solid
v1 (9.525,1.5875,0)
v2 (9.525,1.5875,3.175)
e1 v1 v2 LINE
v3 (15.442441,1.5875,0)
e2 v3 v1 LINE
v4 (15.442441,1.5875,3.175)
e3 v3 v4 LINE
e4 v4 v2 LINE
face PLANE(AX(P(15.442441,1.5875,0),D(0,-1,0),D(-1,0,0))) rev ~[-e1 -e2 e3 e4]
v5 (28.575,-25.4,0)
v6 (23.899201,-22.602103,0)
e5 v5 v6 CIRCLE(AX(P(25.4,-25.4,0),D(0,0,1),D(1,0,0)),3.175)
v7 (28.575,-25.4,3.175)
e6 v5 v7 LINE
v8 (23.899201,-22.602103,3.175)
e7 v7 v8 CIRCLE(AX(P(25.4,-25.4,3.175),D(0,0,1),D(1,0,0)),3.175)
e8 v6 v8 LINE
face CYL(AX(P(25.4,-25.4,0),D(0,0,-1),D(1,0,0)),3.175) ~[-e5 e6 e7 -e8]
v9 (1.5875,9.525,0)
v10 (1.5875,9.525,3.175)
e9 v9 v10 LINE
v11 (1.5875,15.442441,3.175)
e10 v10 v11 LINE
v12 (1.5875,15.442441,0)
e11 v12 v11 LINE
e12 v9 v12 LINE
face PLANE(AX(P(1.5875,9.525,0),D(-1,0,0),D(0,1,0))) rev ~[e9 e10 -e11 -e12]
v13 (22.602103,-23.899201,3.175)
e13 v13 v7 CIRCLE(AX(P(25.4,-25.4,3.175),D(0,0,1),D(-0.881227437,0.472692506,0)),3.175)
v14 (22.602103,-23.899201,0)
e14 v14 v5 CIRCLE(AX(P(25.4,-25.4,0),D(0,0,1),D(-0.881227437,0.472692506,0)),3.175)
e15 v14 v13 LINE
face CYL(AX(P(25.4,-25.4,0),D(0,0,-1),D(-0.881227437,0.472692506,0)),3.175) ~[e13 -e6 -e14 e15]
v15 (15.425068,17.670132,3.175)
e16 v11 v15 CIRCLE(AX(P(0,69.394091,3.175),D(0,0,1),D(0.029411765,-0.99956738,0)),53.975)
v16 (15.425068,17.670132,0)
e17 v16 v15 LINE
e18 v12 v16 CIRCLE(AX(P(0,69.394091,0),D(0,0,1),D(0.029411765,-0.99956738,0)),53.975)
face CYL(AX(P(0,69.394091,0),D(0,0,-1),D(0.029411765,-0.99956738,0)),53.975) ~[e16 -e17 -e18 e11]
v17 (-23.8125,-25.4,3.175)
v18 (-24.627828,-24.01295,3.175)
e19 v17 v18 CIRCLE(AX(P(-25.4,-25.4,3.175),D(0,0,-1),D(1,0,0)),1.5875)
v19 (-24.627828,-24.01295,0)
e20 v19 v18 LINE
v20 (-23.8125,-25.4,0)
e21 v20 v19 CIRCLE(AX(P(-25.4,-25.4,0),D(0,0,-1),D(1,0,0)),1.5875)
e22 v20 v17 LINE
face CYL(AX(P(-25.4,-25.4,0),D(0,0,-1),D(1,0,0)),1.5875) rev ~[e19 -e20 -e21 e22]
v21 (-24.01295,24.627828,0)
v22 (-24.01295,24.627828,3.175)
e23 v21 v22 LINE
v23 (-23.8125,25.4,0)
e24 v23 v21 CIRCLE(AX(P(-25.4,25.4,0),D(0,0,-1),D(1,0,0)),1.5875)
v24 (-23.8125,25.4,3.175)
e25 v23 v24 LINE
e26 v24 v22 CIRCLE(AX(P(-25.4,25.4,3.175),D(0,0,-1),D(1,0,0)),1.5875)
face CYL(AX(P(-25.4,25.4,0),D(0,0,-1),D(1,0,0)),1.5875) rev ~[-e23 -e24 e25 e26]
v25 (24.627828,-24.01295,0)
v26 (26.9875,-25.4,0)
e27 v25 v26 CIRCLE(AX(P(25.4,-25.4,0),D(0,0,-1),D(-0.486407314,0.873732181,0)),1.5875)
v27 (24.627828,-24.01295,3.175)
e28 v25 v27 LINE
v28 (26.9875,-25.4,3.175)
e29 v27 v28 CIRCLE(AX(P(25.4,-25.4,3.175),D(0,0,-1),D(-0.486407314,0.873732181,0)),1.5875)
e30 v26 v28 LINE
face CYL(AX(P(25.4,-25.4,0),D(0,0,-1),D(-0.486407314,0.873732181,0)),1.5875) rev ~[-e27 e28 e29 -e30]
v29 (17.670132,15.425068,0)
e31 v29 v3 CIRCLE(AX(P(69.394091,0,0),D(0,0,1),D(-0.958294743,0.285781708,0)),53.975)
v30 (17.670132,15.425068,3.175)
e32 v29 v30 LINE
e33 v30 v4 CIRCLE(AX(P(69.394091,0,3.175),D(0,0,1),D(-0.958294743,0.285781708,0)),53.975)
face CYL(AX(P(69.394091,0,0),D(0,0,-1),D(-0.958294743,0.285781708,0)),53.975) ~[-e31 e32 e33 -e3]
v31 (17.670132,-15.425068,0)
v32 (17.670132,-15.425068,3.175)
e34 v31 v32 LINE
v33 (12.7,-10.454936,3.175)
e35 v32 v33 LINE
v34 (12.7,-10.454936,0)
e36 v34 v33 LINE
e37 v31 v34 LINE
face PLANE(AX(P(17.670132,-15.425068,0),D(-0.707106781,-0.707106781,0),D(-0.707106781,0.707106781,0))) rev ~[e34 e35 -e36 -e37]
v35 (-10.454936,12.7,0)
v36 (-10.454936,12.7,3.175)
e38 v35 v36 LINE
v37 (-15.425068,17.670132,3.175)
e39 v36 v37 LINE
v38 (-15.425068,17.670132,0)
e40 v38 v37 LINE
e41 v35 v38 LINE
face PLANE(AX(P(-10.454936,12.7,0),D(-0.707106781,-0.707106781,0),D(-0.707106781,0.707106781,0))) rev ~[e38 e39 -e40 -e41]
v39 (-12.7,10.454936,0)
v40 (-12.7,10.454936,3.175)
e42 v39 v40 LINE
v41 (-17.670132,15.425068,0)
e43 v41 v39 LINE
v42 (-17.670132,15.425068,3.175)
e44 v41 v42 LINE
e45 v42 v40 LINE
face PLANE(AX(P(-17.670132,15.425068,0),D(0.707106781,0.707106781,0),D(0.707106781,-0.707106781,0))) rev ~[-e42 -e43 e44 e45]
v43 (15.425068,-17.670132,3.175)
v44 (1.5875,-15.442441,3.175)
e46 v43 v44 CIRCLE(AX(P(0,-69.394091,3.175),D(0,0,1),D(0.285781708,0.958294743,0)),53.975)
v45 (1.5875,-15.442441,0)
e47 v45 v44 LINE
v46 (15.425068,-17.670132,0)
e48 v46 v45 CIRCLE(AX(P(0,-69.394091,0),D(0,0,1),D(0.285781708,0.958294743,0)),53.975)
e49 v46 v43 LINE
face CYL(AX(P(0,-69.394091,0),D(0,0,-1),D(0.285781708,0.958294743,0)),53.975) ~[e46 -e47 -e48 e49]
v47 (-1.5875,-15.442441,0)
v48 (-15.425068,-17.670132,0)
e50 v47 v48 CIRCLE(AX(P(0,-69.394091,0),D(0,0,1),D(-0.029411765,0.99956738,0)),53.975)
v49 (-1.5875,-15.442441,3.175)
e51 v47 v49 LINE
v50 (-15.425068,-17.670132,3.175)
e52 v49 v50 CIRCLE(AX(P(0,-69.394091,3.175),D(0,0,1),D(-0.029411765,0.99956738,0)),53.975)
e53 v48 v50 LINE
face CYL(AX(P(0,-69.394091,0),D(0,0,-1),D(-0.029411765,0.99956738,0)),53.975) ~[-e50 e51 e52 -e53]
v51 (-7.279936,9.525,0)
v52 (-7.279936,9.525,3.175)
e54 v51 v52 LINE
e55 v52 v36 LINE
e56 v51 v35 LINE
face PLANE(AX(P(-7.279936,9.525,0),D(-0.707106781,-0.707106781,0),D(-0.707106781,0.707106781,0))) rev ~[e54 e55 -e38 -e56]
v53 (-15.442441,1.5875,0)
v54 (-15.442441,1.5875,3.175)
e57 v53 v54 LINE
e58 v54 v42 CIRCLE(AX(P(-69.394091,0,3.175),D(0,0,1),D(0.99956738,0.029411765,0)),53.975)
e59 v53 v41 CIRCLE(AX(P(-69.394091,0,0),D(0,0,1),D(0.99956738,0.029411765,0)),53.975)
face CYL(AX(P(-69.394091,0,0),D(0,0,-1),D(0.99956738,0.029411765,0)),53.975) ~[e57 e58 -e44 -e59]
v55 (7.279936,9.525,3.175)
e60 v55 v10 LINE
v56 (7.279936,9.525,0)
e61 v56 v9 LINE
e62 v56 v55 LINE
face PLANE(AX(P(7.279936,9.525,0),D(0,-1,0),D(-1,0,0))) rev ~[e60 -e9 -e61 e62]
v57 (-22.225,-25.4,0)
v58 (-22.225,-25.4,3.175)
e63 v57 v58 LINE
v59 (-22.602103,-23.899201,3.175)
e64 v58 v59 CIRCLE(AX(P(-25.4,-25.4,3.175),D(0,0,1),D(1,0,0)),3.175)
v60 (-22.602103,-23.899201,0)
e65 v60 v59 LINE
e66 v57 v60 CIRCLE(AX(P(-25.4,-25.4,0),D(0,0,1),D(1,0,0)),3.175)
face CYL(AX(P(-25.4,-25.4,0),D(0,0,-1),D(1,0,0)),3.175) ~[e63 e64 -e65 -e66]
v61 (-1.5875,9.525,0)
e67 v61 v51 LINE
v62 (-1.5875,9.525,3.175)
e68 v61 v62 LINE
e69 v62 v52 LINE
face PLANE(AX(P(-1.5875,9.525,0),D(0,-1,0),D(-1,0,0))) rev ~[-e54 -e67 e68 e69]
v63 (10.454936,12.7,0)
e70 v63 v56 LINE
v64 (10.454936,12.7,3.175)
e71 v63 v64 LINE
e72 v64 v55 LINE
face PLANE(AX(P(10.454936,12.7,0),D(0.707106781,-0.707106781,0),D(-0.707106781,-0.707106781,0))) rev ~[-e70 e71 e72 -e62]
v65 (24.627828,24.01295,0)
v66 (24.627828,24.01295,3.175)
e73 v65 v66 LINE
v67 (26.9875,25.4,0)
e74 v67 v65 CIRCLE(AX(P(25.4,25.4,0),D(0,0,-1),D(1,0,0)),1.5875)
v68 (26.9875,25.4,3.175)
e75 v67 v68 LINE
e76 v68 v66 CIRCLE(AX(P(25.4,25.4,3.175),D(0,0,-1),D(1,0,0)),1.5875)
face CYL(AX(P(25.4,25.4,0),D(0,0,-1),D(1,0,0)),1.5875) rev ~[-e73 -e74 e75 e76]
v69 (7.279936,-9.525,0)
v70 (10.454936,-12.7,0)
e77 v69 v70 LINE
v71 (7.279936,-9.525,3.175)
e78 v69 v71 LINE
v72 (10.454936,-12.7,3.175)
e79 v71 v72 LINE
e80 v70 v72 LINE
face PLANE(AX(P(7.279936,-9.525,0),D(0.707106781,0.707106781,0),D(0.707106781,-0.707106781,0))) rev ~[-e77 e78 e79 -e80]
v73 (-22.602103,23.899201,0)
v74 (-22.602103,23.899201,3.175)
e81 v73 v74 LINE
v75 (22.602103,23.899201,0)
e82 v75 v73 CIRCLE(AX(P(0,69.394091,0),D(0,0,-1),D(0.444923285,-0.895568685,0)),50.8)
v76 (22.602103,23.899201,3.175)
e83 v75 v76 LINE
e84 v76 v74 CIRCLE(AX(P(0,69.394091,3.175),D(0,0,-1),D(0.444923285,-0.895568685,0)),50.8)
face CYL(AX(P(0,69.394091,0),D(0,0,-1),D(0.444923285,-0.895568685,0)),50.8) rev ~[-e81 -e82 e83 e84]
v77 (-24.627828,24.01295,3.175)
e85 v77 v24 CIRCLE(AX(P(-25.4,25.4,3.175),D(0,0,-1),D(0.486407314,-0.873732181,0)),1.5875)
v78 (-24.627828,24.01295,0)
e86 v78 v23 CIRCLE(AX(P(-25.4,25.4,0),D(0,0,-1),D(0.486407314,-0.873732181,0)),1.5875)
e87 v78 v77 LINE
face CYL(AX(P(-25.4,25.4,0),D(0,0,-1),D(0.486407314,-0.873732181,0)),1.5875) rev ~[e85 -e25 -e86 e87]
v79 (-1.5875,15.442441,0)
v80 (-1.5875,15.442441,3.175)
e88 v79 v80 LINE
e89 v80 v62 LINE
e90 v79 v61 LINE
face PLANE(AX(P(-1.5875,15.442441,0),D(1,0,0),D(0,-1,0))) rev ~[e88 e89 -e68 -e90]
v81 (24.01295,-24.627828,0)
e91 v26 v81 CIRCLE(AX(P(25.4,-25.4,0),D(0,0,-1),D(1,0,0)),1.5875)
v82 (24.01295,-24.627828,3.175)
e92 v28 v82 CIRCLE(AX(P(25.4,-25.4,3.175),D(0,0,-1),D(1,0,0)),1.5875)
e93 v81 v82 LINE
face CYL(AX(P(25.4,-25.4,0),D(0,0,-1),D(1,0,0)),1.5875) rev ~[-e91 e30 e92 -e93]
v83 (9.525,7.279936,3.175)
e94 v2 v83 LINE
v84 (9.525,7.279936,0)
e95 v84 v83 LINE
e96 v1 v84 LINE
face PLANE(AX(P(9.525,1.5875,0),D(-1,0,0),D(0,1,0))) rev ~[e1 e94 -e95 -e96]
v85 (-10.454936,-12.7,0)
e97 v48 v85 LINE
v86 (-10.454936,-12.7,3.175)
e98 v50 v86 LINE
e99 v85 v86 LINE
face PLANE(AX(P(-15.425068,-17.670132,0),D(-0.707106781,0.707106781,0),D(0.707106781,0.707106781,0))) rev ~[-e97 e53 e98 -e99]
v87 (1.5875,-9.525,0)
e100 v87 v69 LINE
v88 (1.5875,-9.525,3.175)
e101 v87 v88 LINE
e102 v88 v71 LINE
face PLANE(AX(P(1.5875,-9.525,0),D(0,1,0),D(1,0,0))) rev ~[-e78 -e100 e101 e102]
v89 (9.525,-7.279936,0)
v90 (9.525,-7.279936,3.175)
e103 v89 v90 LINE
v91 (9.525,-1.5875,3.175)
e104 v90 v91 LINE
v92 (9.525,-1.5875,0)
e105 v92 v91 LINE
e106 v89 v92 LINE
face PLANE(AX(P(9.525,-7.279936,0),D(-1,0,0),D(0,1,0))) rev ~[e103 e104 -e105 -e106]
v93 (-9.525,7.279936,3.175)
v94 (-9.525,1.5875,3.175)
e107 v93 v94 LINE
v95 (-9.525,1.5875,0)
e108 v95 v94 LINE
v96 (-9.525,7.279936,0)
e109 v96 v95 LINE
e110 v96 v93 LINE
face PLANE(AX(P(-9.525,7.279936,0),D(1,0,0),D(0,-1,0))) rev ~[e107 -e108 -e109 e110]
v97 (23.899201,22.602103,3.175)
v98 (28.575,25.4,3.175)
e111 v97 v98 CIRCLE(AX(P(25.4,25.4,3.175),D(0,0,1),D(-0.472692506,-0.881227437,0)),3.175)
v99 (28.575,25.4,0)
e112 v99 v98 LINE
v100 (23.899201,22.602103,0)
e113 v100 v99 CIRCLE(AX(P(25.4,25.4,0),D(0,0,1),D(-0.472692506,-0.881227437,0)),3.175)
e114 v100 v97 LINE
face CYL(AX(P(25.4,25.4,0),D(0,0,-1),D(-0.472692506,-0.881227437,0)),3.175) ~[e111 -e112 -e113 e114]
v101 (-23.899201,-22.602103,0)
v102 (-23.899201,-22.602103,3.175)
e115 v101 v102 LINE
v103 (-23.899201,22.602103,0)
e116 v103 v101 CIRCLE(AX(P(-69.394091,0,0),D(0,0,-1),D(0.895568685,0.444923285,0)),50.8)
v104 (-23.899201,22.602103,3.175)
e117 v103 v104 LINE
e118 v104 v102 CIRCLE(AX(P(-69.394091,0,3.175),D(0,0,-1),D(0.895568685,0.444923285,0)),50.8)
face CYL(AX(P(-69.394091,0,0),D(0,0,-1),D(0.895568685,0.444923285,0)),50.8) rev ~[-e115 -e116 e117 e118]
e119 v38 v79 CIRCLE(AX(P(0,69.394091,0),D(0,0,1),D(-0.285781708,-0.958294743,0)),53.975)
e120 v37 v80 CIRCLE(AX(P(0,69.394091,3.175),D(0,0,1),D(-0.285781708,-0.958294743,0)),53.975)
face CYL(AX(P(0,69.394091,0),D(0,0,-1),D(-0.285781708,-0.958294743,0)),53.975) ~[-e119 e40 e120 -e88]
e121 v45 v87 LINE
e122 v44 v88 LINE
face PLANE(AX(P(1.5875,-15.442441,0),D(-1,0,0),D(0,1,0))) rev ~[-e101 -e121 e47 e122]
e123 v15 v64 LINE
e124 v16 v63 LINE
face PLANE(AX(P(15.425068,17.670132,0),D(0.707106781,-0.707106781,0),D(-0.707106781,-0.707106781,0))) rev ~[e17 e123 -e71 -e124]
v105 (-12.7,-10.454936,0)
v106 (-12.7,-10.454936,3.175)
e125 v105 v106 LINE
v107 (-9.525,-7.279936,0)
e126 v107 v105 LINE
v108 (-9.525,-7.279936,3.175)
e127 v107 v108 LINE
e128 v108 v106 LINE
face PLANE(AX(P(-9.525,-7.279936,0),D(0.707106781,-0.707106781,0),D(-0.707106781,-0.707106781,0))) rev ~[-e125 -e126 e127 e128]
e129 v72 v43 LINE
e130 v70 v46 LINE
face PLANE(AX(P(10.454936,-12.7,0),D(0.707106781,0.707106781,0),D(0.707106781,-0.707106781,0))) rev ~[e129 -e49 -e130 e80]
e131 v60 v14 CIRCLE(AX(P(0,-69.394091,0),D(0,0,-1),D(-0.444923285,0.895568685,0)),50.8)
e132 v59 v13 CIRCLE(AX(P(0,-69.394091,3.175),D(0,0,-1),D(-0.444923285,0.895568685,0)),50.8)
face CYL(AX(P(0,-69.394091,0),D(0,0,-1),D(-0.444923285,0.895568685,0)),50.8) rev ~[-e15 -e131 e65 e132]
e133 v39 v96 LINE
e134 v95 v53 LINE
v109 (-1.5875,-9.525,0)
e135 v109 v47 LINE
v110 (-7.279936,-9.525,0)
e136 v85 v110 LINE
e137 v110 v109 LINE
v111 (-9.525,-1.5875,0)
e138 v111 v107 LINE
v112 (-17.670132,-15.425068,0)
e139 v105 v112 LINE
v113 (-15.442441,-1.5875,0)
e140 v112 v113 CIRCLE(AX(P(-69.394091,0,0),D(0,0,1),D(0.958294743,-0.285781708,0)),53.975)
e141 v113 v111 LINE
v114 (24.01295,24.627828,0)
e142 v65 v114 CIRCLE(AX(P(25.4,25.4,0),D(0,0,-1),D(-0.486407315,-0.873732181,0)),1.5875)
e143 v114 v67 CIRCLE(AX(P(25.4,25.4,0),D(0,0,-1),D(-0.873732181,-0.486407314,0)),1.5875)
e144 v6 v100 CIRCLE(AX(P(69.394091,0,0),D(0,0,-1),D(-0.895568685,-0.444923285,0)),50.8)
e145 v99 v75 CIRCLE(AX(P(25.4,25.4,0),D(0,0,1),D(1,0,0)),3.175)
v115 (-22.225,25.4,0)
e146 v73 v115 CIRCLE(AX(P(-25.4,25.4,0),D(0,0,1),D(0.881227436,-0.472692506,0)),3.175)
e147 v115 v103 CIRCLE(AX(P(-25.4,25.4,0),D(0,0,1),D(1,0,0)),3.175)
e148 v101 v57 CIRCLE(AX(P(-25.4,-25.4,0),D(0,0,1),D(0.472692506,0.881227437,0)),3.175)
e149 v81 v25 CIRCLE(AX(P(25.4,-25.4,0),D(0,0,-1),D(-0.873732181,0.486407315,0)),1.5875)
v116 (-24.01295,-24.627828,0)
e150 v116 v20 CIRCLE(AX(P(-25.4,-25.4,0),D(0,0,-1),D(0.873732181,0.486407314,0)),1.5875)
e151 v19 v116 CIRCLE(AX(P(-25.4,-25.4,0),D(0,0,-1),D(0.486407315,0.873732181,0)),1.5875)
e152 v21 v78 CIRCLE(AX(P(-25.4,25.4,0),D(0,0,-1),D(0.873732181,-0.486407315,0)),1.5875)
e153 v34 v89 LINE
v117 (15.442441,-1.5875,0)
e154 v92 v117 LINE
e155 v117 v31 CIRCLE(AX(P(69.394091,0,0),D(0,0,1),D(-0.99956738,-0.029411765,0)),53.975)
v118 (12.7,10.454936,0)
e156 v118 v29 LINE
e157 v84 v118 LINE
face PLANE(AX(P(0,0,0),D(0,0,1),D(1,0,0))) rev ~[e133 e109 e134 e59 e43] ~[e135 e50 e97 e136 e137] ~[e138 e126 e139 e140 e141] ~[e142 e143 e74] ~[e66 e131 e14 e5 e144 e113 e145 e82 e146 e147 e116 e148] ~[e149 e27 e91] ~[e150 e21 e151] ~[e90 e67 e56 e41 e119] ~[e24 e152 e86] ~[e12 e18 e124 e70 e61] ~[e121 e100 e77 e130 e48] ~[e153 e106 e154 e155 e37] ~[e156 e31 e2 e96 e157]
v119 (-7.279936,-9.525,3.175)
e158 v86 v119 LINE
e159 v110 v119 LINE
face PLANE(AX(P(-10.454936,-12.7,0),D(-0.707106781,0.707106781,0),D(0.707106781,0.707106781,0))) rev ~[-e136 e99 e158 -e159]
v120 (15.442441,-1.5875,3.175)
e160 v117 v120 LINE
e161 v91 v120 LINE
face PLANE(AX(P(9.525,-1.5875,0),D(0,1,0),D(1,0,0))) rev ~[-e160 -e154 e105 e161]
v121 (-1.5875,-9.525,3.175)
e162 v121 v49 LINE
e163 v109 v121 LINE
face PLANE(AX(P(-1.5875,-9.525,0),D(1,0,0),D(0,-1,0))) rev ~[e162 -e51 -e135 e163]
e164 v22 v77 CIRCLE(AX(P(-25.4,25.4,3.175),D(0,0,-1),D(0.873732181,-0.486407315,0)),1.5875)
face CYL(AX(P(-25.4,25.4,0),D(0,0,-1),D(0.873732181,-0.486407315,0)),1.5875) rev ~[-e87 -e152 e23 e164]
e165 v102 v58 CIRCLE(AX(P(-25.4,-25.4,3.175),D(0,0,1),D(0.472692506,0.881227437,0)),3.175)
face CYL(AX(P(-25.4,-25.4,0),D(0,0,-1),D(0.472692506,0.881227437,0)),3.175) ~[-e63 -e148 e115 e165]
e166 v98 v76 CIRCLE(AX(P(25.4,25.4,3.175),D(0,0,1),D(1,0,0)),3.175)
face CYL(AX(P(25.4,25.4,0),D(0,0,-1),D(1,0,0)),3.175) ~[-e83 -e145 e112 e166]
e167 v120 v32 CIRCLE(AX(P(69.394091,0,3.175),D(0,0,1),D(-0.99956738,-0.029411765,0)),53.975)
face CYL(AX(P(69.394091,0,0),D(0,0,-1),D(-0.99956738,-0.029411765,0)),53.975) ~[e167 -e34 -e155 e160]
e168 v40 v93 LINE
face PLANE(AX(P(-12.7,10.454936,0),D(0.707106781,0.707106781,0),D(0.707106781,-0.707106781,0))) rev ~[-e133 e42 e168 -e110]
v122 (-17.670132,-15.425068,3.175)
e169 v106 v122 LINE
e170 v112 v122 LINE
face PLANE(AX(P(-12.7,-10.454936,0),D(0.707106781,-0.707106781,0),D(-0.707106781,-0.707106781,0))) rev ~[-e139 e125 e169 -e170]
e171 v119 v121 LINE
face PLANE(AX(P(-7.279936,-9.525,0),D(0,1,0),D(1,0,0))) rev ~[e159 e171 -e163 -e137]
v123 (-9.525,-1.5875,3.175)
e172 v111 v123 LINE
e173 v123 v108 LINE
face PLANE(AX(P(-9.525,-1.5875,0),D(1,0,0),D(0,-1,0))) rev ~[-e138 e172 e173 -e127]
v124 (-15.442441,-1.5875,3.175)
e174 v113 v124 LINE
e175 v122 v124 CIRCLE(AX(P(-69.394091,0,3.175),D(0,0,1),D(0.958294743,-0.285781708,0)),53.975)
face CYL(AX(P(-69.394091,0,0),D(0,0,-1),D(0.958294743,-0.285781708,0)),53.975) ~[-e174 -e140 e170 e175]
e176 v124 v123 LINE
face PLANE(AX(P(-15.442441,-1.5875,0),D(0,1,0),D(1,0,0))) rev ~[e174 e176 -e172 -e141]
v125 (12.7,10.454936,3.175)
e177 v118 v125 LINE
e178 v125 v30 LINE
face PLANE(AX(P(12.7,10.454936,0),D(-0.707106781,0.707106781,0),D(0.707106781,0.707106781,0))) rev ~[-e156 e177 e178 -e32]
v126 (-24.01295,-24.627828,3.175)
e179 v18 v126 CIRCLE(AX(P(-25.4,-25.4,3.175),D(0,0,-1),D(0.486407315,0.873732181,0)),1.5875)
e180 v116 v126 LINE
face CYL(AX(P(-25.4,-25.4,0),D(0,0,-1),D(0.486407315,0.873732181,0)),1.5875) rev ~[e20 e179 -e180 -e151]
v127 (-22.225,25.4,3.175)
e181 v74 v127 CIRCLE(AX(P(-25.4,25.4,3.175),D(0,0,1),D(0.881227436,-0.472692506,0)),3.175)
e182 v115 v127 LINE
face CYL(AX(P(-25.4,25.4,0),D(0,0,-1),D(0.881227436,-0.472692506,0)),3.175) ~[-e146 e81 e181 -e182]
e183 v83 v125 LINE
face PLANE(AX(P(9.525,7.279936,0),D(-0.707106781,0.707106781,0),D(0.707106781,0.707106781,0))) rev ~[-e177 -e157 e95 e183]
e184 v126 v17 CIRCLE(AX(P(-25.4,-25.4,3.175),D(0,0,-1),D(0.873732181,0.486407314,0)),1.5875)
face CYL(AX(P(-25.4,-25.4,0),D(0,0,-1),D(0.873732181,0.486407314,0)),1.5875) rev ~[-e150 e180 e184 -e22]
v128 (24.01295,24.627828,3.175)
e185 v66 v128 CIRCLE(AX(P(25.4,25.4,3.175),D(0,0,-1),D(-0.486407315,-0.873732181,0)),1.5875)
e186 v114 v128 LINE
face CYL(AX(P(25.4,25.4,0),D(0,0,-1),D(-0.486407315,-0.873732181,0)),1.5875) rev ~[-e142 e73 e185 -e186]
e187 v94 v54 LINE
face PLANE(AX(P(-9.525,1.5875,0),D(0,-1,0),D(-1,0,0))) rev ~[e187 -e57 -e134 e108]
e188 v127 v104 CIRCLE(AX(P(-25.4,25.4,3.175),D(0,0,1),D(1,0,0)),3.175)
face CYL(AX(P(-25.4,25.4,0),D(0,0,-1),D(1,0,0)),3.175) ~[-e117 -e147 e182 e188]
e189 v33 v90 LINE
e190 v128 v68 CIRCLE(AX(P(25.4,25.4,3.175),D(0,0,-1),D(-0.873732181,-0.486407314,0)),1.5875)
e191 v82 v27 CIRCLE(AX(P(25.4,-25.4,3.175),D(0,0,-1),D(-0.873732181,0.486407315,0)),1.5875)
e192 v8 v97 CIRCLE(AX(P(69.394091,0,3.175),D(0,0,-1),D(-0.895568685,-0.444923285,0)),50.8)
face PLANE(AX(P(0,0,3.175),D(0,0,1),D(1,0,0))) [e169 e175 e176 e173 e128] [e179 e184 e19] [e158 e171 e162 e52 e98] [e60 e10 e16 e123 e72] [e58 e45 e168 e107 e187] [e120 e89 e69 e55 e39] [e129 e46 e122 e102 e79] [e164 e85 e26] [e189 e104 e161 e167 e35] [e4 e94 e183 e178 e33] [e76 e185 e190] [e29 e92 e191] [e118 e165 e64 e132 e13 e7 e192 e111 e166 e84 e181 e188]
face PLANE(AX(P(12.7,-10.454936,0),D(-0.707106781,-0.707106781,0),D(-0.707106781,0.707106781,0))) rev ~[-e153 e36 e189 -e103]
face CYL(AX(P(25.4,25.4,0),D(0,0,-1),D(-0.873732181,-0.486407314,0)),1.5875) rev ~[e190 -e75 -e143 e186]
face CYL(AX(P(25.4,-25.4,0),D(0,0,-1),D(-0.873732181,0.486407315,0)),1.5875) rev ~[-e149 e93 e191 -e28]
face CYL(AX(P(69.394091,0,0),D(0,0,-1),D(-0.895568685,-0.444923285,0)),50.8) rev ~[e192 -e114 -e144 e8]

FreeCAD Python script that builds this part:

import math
import FreeCAD as App
import Part
import Sketcher
Q = App.Units.Quantity

doc = App.newDocument("Part")
params = doc.addObject("Spreadsheet::Sheet", "Params")
for row, (alias, value) in enumerate([
    ("sketch1_radius", "2 in"),
    ("sketch1_radius2", "0.125 in"),
    ("sketch1_radius3", "0.0625 in"),
    ("sketch1_radius4", "2.125 in"),
    ("pad1_length", "0.125 in"),
], start=1):
    params.set(f"A{row}", alias)
    params.set(f"B{row}", "=" + value)
    params.setAlias(f"B{row}", alias)

body = doc.addObject("PartDesign::Body", "Body")

# Sketch on XY plane
sketch1 = body.newObject("Sketcher::SketchObject", "Sketch")
sketch1.AttachmentSupport = (doc.getObject("XY_Plane"), [""])
sketch1.MapMode = "FlatFace"
sketch1.addGeometry(Part.ArcOfCircle(Part.Circle(App.Vector(-69.4, 0, 0), App.Vector(0, 0, 1), 50.8), math.radians(-26), math.radians(26)), False)
sketch1.addGeometry(Part.ArcOfCircle(Part.Circle(App.Vector(-25.4, -25.4, 0), App.Vector(0, 0, 1), 3.2), math.radians(62), math.radians(360)), False)
sketch1.addGeometry(Part.ArcOfCircle(Part.Circle(App.Vector(-25.4, -25.4, 0), App.Vector(0, 0, 1), 3.2), math.radians(0), math.radians(28)), False)
sketch1.addGeometry(Part.ArcOfCircle(Part.Circle(App.Vector(0, -69.4, 0), App.Vector(0, 0, 1), 50.8), math.radians(64), math.radians(116)), False)
sketch1.addGeometry(Part.ArcOfCircle(Part.Circle(App.Vector(25.4, -25.4, 0), App.Vector(0, 0, 1), 3.2), math.radians(152), math.radians(360)), False)
sketch1.addGeometry(Part.ArcOfCircle(Part.Circle(App.Vector(25.4, -25.4, 0), App.Vector(0, 0, 1), 3.2), math.radians(0), math.radians(118)), False)
sketch1.addGeometry(Part.ArcOfCircle(Part.Circle(App.Vector(69.4, 0, 0), App.Vector(0, 0, 1), 50.8), math.radians(154), math.radians(206)), False)
sketch1.addGeometry(Part.ArcOfCircle(Part.Circle(App.Vector(25.4, 25.4, 0), App.Vector(0, 0, 1), 3.2), math.radians(-118), math.radians(0)), False)
sketch1.addGeometry(Part.ArcOfCircle(Part.Circle(App.Vector(25.4, 25.4, 0), App.Vector(0, 0, 1), 3.2), math.radians(0), math.radians(208)), False)
sketch1.addGeometry(Part.ArcOfCircle(Part.Circle(App.Vector(0, 69.4, 0), App.Vector(0, 0, 1), 50.8), math.radians(-116), math.radians(-64)), False)
sketch1.addGeometry(Part.ArcOfCircle(Part.Circle(App.Vector(-25.4, 25.4, 0), App.Vector(0, 0, 1), 3.2), math.radians(-28), math.radians(0)), False)
sketch1.addGeometry(Part.ArcOfCircle(Part.Circle(App.Vector(-25.4, 25.4, 0), App.Vector(0, 0, 1), 3.2), math.radians(0), math.radians(298)), False)
sketch1.addGeometry(Part.ArcOfCircle(Part.Circle(App.Vector(-25.4, -25.4, 0), App.Vector(0, 0, 1), 1.6), math.radians(29), math.radians(61)), False)
sketch1.addGeometry(Part.ArcOfCircle(Part.Circle(App.Vector(-25.4, -25.4, 0), App.Vector(0, 0, 1), 1.6), math.radians(0), math.radians(29)), False)
sketch1.addGeometry(Part.ArcOfCircle(Part.Circle(App.Vector(-25.4, -25.4, 0), App.Vector(0, 0, 1), 1.6), math.radians(61), math.radians(360)), False)
sketch1.addGeometry(Part.LineSegment(App.Vector(-1.6, -9.5, 0), App.Vector(-1.6, -15.4, 0)), False)
sketch1.addGeometry(Part.ArcOfCircle(Part.Circle(App.Vector(0, -69.4, 0), App.Vector(0, 0, 1), 54), math.radians(91.69), math.radians(106.61)), False)
sketch1.addGeometry(Part.LineSegment(App.Vector(-15.4, -17.7, 0), App.Vector(-10.5, -12.7, 0)), False)
sketch1.addGeometry(Part.LineSegment(App.Vector(-10.5, -12.7, 0), App.Vector(-7.3, -9.5, 0)), False)
sketch1.addGeometry(Part.LineSegment(App.Vector(-7.3, -9.5, 0), App.Vector(-1.6, -9.5, 0)), False)
sketch1.addGeometry(Part.ArcOfCircle(Part.Circle(App.Vector(-69.4, 0, 0), App.Vector(0, 0, 1), 54), math.radians(-16.61), math.radians(-1.69)), False)
sketch1.addGeometry(Part.LineSegment(App.Vector(-15.4, -1.6, 0), App.Vector(-9.5, -1.6, 0)), False)
sketch1.addGeometry(Part.LineSegment(App.Vector(-9.5, -1.6, 0), App.Vector(-9.5, -7.3, 0)), False)
sketch1.addGeometry(Part.LineSegment(App.Vector(-9.5, -7.3, 0), App.Vector(-12.7, -10.5, 0)), False)
sketch1.addGeometry(Part.LineSegment(App.Vector(-12.7, -10.5, 0), App.Vector(-17.7, -15.4, 0)), False)
sketch1.addGeometry(Part.ArcOfCircle(Part.Circle(App.Vector(0, -69.4, 0), App.Vector(0, 0, 1), 54), math.radians(73.39), math.radians(88.31)), False)
sketch1.addGeometry(Part.LineSegment(App.Vector(1.6, -15.4, 0), App.Vector(1.6, -9.5, 0)), False)
sketch1.addGeometry(Part.LineSegment(App.Vector(1.6, -9.5, 0), App.Vector(7.3, -9.5, 0)), False)
sketch1.addGeometry(Part.LineSegment(App.Vector(7.3, -9.5, 0), App.Vector(10.5, -12.7, 0)), False)
sketch1.addGeometry(Part.LineSegment(App.Vector(10.5, -12.7, 0), App.Vector(15.4, -17.7, 0)), False)
sketch1.addGeometry(Part.ArcOfCircle(Part.Circle(App.Vector(25.4, -25.4, 0), App.Vector(0, 0, 1), 1.6), math.radians(119), math.radians(151)), False)
sketch1.addGeometry(Part.ArcOfCircle(Part.Circle(App.Vector(25.4, -25.4, 0), App.Vector(0, 0, 1), 1.6), math.radians(0), math.radians(119)), False)
sketch1.addGeometry(Part.ArcOfCircle(Part.Circle(App.Vector(25.4, -25.4, 0), App.Vector(0, 0, 1), 1.6), math.radians(151), math.radians(360)), False)
sketch1.addGeometry(Part.LineSegment(App.Vector(9.5, -1.6, 0), App.Vector(15.4, -1.6, 0)), False)
sketch1.addGeometry(Part.ArcOfCircle(Part.Circle(App.Vector(69.4, 0, 0), App.Vector(0, 0, 1), 54), math.radians(-178.31), math.radians(-163.39)), False)
sketch1.addGeometry(Part.LineSegment(App.Vector(17.7, -15.4, 0), App.Vector(12.7, -10.5, 0)), False)
sketch1.addGeometry(Part.LineSegment(App.Vector(12.7, -10.5, 0), App.Vector(9.5, -7.3, 0)), False)
sketch1.addGeometry(Part.LineSegment(App.Vector(9.5, -7.3, 0), App.Vector(9.5, -1.6, 0)), False)
sketch1.addGeometry(Part.LineSegment(App.Vector(-9.5, 1.6, 0), App.Vector(-15.4, 1.6, 0)), False)
sketch1.addGeometry(Part.ArcOfCircle(Part.Circle(App.Vector(-69.4, 0, 0), App.Vector(0, 0, 1), 54), math.radians(1.69), math.radians(16.61)), False)
sketch1.addGeometry(Part.LineSegment(App.Vector(-17.7, 15.4, 0), App.Vector(-12.7, 10.5, 0)), False)
sketch1.addGeometry(Part.LineSegment(App.Vector(-12.7, 10.5, 0), App.Vector(-9.5, 7.3, 0)), False)
sketch1.addGeometry(Part.LineSegment(App.Vector(-9.5, 7.3, 0), App.Vector(-9.5, 1.6, 0)), False)
sketch1.addGeometry(Part.ArcOfCircle(Part.Circle(App.Vector(-25.4, 25.4, 0), App.Vector(0, 0, 1), 1.6), math.radians(-61), math.radians(-29)), False)
sketch1.addGeometry(Part.ArcOfCircle(Part.Circle(App.Vector(-25.4, 25.4, 0), App.Vector(0, 0, 1), 1.6), math.radians(0), math.radians(299)), False)
sketch1.addGeometry(Part.ArcOfCircle(Part.Circle(App.Vector(-25.4, 25.4, 0), App.Vector(0, 0, 1), 1.6), math.radians(-29), math.radians(0)), False)
sketch1.addGeometry(Part.ArcOfCircle(Part.Circle(App.Vector(0, 69.4, 0), App.Vector(0, 0, 1), 54), math.radians(-106.61), math.radians(-91.69)), False)
sketch1.addGeometry(Part.LineSegment(App.Vector(-1.6, 15.4, 0), App.Vector(-1.6, 9.5, 0)), False)
sketch1.addGeometry(Part.LineSegment(App.Vector(-1.6, 9.5, 0), App.Vector(-7.3, 9.5, 0)), False)
sketch1.addGeometry(Part.LineSegment(App.Vector(-7.3, 9.5, 0), App.Vector(-10.5, 12.7, 0)), False)
sketch1.addGeometry(Part.LineSegment(App.Vector(-10.5, 12.7, 0), App.Vector(-15.4, 17.7, 0)), False)
sketch1.addGeometry(Part.ArcOfCircle(Part.Circle(App.Vector(69.4, 0, 0), App.Vector(0, 0, 1), 54), math.radians(163.39), math.radians(178.31)), False)
sketch1.addGeometry(Part.LineSegment(App.Vector(15.4, 1.6, 0), App.Vector(9.5, 1.6, 0)), False)
sketch1.addGeometry(Part.LineSegment(App.Vector(9.5, 1.6, 0), App.Vector(9.5, 7.3, 0)), False)
sketch1.addGeometry(Part.LineSegment(App.Vector(9.5, 7.3, 0), App.Vector(12.7, 10.5, 0)), False)
sketch1.addGeometry(Part.LineSegment(App.Vector(12.7, 10.5, 0), App.Vector(17.7, 15.4, 0)), False)
sketch1.addGeometry(Part.LineSegment(App.Vector(1.6, 9.5, 0), App.Vector(1.6, 15.4, 0)), False)
sketch1.addGeometry(Part.ArcOfCircle(Part.Circle(App.Vector(0, 69.4, 0), App.Vector(0, 0, 1), 54), math.radians(-88.31), math.radians(-73.39)), False)
sketch1.addGeometry(Part.LineSegment(App.Vector(15.4, 17.7, 0), App.Vector(10.5, 12.7, 0)), False)
sketch1.addGeometry(Part.LineSegment(App.Vector(10.5, 12.7, 0), App.Vector(7.3, 9.5, 0)), False)
sketch1.addGeometry(Part.LineSegment(App.Vector(7.3, 9.5, 0), App.Vector(1.6, 9.5, 0)), False)
sketch1.addGeometry(Part.ArcOfCircle(Part.Circle(App.Vector(25.4, 25.4, 0), App.Vector(0, 0, 1), 1.6), math.radians(-151), math.radians(-119)), False)
sketch1.addGeometry(Part.ArcOfCircle(Part.Circle(App.Vector(25.4, 25.4, 0), App.Vector(0, 0, 1), 1.6), math.radians(0), math.radians(209)), False)
sketch1.addGeometry(Part.ArcOfCircle(Part.Circle(App.Vector(25.4, 25.4, 0), App.Vector(0, 0, 1), 1.6), math.radians(-119), math.radians(0)), False)
sketch1.addConstraint(Sketcher.Constraint("Coincident", 0, 1, 1, 1))
sketch1.addConstraint(Sketcher.Constraint("Tangent", 1, 2, 2, 1))
sketch1.addConstraint(Sketcher.Constraint("Coincident", 2, 2, 3, 2))
sketch1.addConstraint(Sketcher.Constraint("Coincident", 3, 1, 4, 1))
sketch1.addConstraint(Sketcher.Constraint("Tangent", 4, 2, 5, 1))
sketch1.addConstraint(Sketcher.Constraint("Coincident", 5, 2, 6, 2))
sketch1.addConstraint(Sketcher.Constraint("Coincident", 6, 1, 7, 1))
sketch1.addConstraint(Sketcher.Constraint("Tangent", 7, 2, 8, 1))
sketch1.addConstraint(Sketcher.Constraint("Coincident", 8, 2, 9, 2))
sketch1.addConstraint(Sketcher.Constraint("Coincident", 9, 1, 10, 1))
sketch1.addConstraint(Sketcher.Constraint("Tangent", 10, 2, 11, 1))
sketch1.addConstraint(Sketcher.Constraint("Coincident", 11, 2, 0, 2))
sketch1.addConstraint(Sketcher.Constraint("Tangent", 12, 1, 13, 2))
sketch1.addConstraint(Sketcher.Constraint("Tangent", 13, 1, 14, 2))
sketch1.addConstraint(Sketcher.Constraint("Tangent", 14, 1, 12, 2))
sketch1.addConstraint(Sketcher.Constraint("Coincident", 15, 2, 16, 1))
sketch1.addConstraint(Sketcher.Constraint("Coincident", 16, 2, 17, 1))
sketch1.addConstraint(Sketcher.Constraint("Coincident", 17, 2, 18, 1))
sketch1.addConstraint(Sketcher.Constraint("Coincident", 18, 2, 19, 1))
sketch1.addConstraint(Sketcher.Constraint("Coincident", 19, 2, 15, 1))
sketch1.addConstraint(Sketcher.Constraint("Coincident", 20, 2, 21, 1))
sketch1.addConstraint(Sketcher.Constraint("Coincident", 21, 2, 22, 1))
sketch1.addConstraint(Sketcher.Constraint("Coincident", 22, 2, 23, 1))
sketch1.addConstraint(Sketcher.Constraint("Coincident", 23, 2, 24, 1))
sketch1.addConstraint(Sketcher.Constraint("Coincident", 24, 2, 20, 1))
sketch1.addConstraint(Sketcher.Constraint("Coincident", 25, 2, 26, 1))
sketch1.addConstraint(Sketcher.Constraint("Coincident", 26, 2, 27, 1))
sketch1.addConstraint(Sketcher.Constraint("Coincident", 27, 2, 28, 1))
sketch1.addConstraint(Sketcher.Constraint("Coincident", 28, 2, 29, 1))
sketch1.addConstraint(Sketcher.Constraint("Coincident", 29, 2, 25, 1))
sketch1.addConstraint(Sketcher.Constraint("Tangent", 30, 1, 31, 2))
sketch1.addConstraint(Sketcher.Constraint("Tangent", 31, 1, 32, 2))
sketch1.addConstraint(Sketcher.Constraint("Tangent", 32, 1, 30, 2))
sketch1.addConstraint(Sketcher.Constraint("Coincident", 33, 2, 34, 1))
sketch1.addConstraint(Sketcher.Constraint("Coincident", 34, 2, 35, 1))
sketch1.addConstraint(Sketcher.Constraint("Coincident", 35, 2, 36, 1))
sketch1.addConstraint(Sketcher.Constraint("Coincident", 36, 2, 37, 1))
sketch1.addConstraint(Sketcher.Constraint("Coincident", 37, 2, 33, 1))
sketch1.addConstraint(Sketcher.Constraint("Coincident", 38, 2, 39, 1))
sketch1.addConstraint(Sketcher.Constraint("Coincident", 39, 2, 40, 1))
sketch1.addConstraint(Sketcher.Constraint("Coincident", 40, 2, 41, 1))
sketch1.addConstraint(Sketcher.Constraint("Coincident", 41, 2, 42, 1))
sketch1.addConstraint(Sketcher.Constraint("Coincident", 42, 2, 38, 1))
sketch1.addConstraint(Sketcher.Constraint("Tangent", 43, 1, 44, 2))
sketch1.addConstraint(Sketcher.Constraint("Tangent", 44, 1, 45, 2))
sketch1.addConstraint(Sketcher.Constraint("Tangent", 45, 1, 43, 2))
sketch1.addConstraint(Sketcher.Constraint("Coincident", 46, 2, 47, 1))
sketch1.addConstraint(Sketcher.Constraint("Coincident", 47, 2, 48, 1))
sketch1.addConstraint(Sketcher.Constraint("Coincident", 48, 2, 49, 1))
sketch1.addConstraint(Sketcher.Constraint("Coincident", 49, 2, 50, 1))
sketch1.addConstraint(Sketcher.Constraint("Coincident", 50, 2, 46, 1))
sketch1.addConstraint(Sketcher.Constraint("Coincident", 51, 2, 52, 1))
sketch1.addConstraint(Sketcher.Constraint("Coincident", 52, 2, 53, 1))
sketch1.addConstraint(Sketcher.Constraint("Coincident", 53, 2, 54, 1))
sketch1.addConstraint(Sketcher.Constraint("Coincident", 54, 2, 55, 1))
sketch1.addConstraint(Sketcher.Constraint("Coincident", 55, 2, 51, 1))
sketch1.addConstraint(Sketcher.Constraint("Coincident", 56, 2, 57, 1))
sketch1.addConstraint(Sketcher.Constraint("Coincident", 57, 2, 58, 1))
sketch1.addConstraint(Sketcher.Constraint("Coincident", 58, 2, 59, 1))
sketch1.addConstraint(Sketcher.Constraint("Coincident", 59, 2, 60, 1))
sketch1.addConstraint(Sketcher.Constraint("Coincident", 60, 2, 56, 1))
sketch1.addConstraint(Sketcher.Constraint("Tangent", 61, 1, 62, 2))
sketch1.addConstraint(Sketcher.Constraint("Tangent", 62, 1, 63, 2))
sketch1.addConstraint(Sketcher.Constraint("Tangent", 63, 1, 61, 2))
sketch1.addConstraint(Sketcher.Constraint("Vertical", 15))
sketch1.addConstraint(Sketcher.Constraint("Horizontal", 19))
sketch1.addConstraint(Sketcher.Constraint("Horizontal", 21))
sketch1.addConstraint(Sketcher.Constraint("Vertical", 22))
sketch1.addConstraint(Sketcher.Constraint("Vertical", 26))
sketch1.addConstraint(Sketcher.Constraint("Horizontal", 27))
sketch1.addConstraint(Sketcher.Constraint("Horizontal", 33))
sketch1.addConstraint(Sketcher.Constraint("Vertical", 37))
sketch1.addConstraint(Sketcher.Constraint("Horizontal", 38))
sketch1.addConstraint(Sketcher.Constraint("Vertical", 42))
sketch1.addConstraint(Sketcher.Constraint("Vertical", 47))
sketch1.addConstraint(Sketcher.Constraint("Horizontal", 48))
sketch1.addConstraint(Sketcher.Constraint("Horizontal", 52))
sketch1.addConstraint(Sketcher.Constraint("Vertical", 53))
sketch1.addConstraint(Sketcher.Constraint("Vertical", 56))
sketch1.addConstraint(Sketcher.Constraint("Horizontal", 60))
sketch1.addConstraint(Sketcher.Constraint("Coincident", 12, 3, 1, 3))
sketch1.addConstraint(Sketcher.Constraint("Coincident", 16, 3, 3, 3))
sketch1.addConstraint(Sketcher.Constraint("Coincident", 20, 3, 0, 3))
sketch1.addConstraint(Sketcher.Constraint("Coincident", 25, 3, 3, 3))
sketch1.addConstraint(Sketcher.Constraint("Coincident", 30, 3, 4, 3))
sketch1.addConstraint(Sketcher.Constraint("Coincident", 34, 3, 6, 3))
sketch1.addConstraint(Sketcher.Constraint("Coincident", 39, 3, 0, 3))
sketch1.addConstraint(Sketcher.Constraint("Coincident", 43, 3, 10, 3))
sketch1.addConstraint(Sketcher.Constraint("Coincident", 46, 3, 9, 3))
sketch1.addConstraint(Sketcher.Constraint("Coincident", 51, 3, 6, 3))
sketch1.addConstraint(Sketcher.Constraint("Coincident", 57, 3, 9, 3))
sketch1.addConstraint(Sketcher.Constraint("Coincident", 61, 3, 7, 3))
sketch1.addConstraint(Sketcher.Constraint("Equal", 1, 2))
sketch1.addConstraint(Sketcher.Constraint("Equal", 0, 3))
sketch1.addConstraint(Sketcher.Constraint("Equal", 2, 4))
sketch1.addConstraint(Sketcher.Constraint("Equal", 4, 5))
sketch1.addConstraint(Sketcher.Constraint("Equal", 3, 6))
sketch1.addConstraint(Sketcher.Constraint("Equal", 5, 7))
sketch1.addConstraint(Sketcher.Constraint("Equal", 7, 8))
sketch1.addConstraint(Sketcher.Constraint("Equal", 6, 9))
sketch1.addConstraint(Sketcher.Constraint("Equal", 8, 10))
sketch1.addConstraint(Sketcher.Constraint("Equal", 10, 11))
sketch1.addConstraint(Sketcher.Constraint("Equal", 16, 20))
sketch1.addConstraint(Sketcher.Constraint("Equal", 20, 25))
sketch1.addConstraint(Sketcher.Constraint("Equal", 14, 30))
sketch1.addConstraint(Sketcher.Constraint("Equal", 25, 34))
sketch1.addConstraint(Sketcher.Constraint("Equal", 34, 39))
sketch1.addConstraint(Sketcher.Constraint("Equal", 32, 43))
sketch1.addConstraint(Sketcher.Constraint("Equal", 39, 46))
sketch1.addConstraint(Sketcher.Constraint("Equal", 46, 51))
sketch1.addConstraint(Sketcher.Constraint("Equal", 51, 57))
sketch1.addConstraint(Sketcher.Constraint("Equal", 45, 61))
sketch1.addConstraint(Sketcher.Constraint("Symmetric", 0, 3, 6, 3, -1, 1))
sketch1.addConstraint(Sketcher.Constraint("Symmetric", 1, 3, 7, 3, -1, 1))
sketch1.addConstraint(Sketcher.Constraint("Symmetric", 3, 3, 9, 3, -1, 1))
sketch1.addConstraint(Sketcher.Constraint("Symmetric", 4, 3, 10, 3, -1, 1))
sketch1.addConstraint(Sketcher.Constraint("Symmetric", 35, 2, 40, 2, -1, 1))
sketch1.addConstraint(Sketcher.Constraint("Symmetric", 36, 2, 41, 2, -1, 1))
sketch1.addConstraint(Sketcher.Constraint("Symmetric", 26, 2, 47, 2, -1, 1))
sketch1.addConstraint(Sketcher.Constraint("Symmetric", 28, 2, 49, 2, -1, 1))
sketch1.addConstraint(Sketcher.Constraint("Symmetric", 21, 2, 52, 2, -1, 1))
sketch1.addConstraint(Sketcher.Constraint("Symmetric", 23, 2, 54, 2, -1, 1))
sketch1.addConstraint(Sketcher.Constraint("Symmetric", 17, 2, 58, 2, -1, 1))
sketch1.addConstraint(Sketcher.Constraint("Symmetric", 18, 2, 59, 2, -1, 1))
sketch1.addConstraint(Sketcher.Constraint("Symmetric", 1, 3, 4, 3, -2))
sketch1.addConstraint(Sketcher.Constraint("Symmetric", 15, 2, 25, 2, -2))
sketch1.addConstraint(Sketcher.Constraint("Symmetric", 18, 2, 27, 2, -2))
sketch1.addConstraint(Sketcher.Constraint("Symmetric", 17, 2, 28, 2, -2))
sketch1.addConstraint(Sketcher.Constraint("Symmetric", 20, 2, 33, 2, -2))
sketch1.addConstraint(Sketcher.Constraint("Symmetric", 23, 2, 35, 2, -2))
sketch1.addConstraint(Sketcher.Constraint("Symmetric", 22, 2, 36, 2, -2))
sketch1.addConstraint(Sketcher.Constraint("Parallel", 17, 18))
sketch1.addConstraint(Sketcher.Constraint("Parallel", 18, 23))
sketch1.addConstraint(Sketcher.Constraint("Parallel", 23, 24))
sketch1.addConstraint(Sketcher.Constraint("Perpendicular", 24, 28))
sketch1.addConstraint(Sketcher.Constraint("Parallel", 28, 29))
sketch1.addConstraint(Sketcher.Constraint("Parallel", 29, 35))
sketch1.addConstraint(Sketcher.Constraint("Parallel", 36, 40))
sketch1.addConstraint(Sketcher.Constraint("Parallel", 41, 49))
sketch1.addConstraint(Sketcher.Constraint("Parallel", 49, 50))
sketch1.addConstraint(Sketcher.Constraint("Perpendicular", 50, 54))
sketch1.addConstraint(Sketcher.Constraint("Parallel", 54, 55))
sketch1.addConstraint(Sketcher.Constraint("Parallel", 55, 58))
sketch1.addConstraint(Sketcher.Constraint("Horizontal", 32, 3, 1, 2))
sketch1.addConstraint(Sketcher.Constraint("Horizontal", 1, 2, 4, 2))
sketch1.addConstraint(Sketcher.Constraint("Horizontal", 63, 3, 7, 2))
sketch1.addConstraint(Sketcher.Constraint("Horizontal", 7, 2, 10, 2))
sketch1.addConstraint(Sketcher.Constraint("Horizontal", 4, 2, 13, 1))
sketch1.addConstraint(Sketcher.Constraint("Horizontal", 14, 1, 30, 1))
sketch1.addConstraint(Sketcher.Constraint("Horizontal", 13, 1, 31, 1))
sketch1.addConstraint(Sketcher.Constraint("Horizontal", 12, 1, 32, 1))
sketch1.addConstraint(Sketcher.Constraint("Horizontal", 10, 2, 44, 1))
sketch1.addConstraint(Sketcher.Constraint("Horizontal", 42, 2, 51, 2))
sketch1.addConstraint(Sketcher.Constraint("Horizontal", 46, 2, 56, 2))
sketch1.addConstraint(Sketcher.Constraint("Horizontal", 45, 1, 61, 1))
sketch1.addConstraint(Sketcher.Constraint("Horizontal", 44, 1, 62, 1))
sketch1.addConstraint(Sketcher.Constraint("Horizontal", 43, 1, 63, 1))
sketch1.addConstraint(Sketcher.Constraint("Vertical", 14, 1, 43, 1))
sketch1.addConstraint(Sketcher.Constraint("Vertical", 12, 1, 45, 1))
sketch1.addConstraint(Sketcher.Constraint("Equal", 52, 15))
sketch1.addConstraint(Sketcher.Constraint("Equal", 60, 22))
sketch1.addConstraint(Sketcher.Constraint("Equal", 18, 23))
sketch1.addConstraint(Sketcher.Constraint("Equal", 17, 24))
sketch1.addConstraint(Sketcher.Constraint("Radius", 0, Q("2 in")))
sketch1.addConstraint(Sketcher.Constraint("DistanceX", 1, 3, -1, 1, Q("1 in")))
sketch1.addConstraint(Sketcher.Constraint("DistanceY", 1, 3, -1, 1, Q("1 in")))
sketch1.addConstraint(Sketcher.Constraint("Radius", 1, Q("0.125 in")))
sketch1.addConstraint(Sketcher.Constraint("Radius", 12, Q("0.0625 in")))
sketch1.addConstraint(Sketcher.Constraint("Radius", 16, Q("2.125 in")))
sketch1.addConstraint(Sketcher.Constraint("DistanceY", 17, 2, -1, 1, Q("0.5 in")))
sketch1.addConstraint(Sketcher.Constraint("DistanceX", 23, 2, -1, 1, Q("0.5 in")))
sketch1.addConstraint(Sketcher.Constraint("DistanceX", 15, 2, -1, 1, Q("0.0625 in")))
sketch1.addConstraint(Sketcher.Constraint("DistanceY", 18, 2, -1, 1, Q("0.375 in")))
sketch1.addConstraint(Sketcher.Constraint("DistanceX", 21, 1, 21, 2, 5.917441))
sketch1.addConstraint(Sketcher.Constraint("DistanceX", 19, 1, 19, 2, 5.692436))
sketch1.addConstraint(Sketcher.Constraint("DistanceX", 12, 1, -1, 1, 24.01295))
sketch1.addConstraint(Sketcher.Constraint("DistanceX", 14, 1, -1, 1, 24.627828))
sketch1.setExpression("Constraints[163]", "Params.sketch1_radius")
sketch1.setExpression("Constraints[166]", "Params.sketch1_radius2")
sketch1.setExpression("Constraints[167]", "Params.sketch1_radius3")
sketch1.setExpression("Constraints[168]", "Params.sketch1_radius4")
pad1 = body.newObject("PartDesign::Pad", "Pad")
pad1.Profile = sketch1
pad1.setExpression("Length", "Params.pad1_length")

doc.recompute()
